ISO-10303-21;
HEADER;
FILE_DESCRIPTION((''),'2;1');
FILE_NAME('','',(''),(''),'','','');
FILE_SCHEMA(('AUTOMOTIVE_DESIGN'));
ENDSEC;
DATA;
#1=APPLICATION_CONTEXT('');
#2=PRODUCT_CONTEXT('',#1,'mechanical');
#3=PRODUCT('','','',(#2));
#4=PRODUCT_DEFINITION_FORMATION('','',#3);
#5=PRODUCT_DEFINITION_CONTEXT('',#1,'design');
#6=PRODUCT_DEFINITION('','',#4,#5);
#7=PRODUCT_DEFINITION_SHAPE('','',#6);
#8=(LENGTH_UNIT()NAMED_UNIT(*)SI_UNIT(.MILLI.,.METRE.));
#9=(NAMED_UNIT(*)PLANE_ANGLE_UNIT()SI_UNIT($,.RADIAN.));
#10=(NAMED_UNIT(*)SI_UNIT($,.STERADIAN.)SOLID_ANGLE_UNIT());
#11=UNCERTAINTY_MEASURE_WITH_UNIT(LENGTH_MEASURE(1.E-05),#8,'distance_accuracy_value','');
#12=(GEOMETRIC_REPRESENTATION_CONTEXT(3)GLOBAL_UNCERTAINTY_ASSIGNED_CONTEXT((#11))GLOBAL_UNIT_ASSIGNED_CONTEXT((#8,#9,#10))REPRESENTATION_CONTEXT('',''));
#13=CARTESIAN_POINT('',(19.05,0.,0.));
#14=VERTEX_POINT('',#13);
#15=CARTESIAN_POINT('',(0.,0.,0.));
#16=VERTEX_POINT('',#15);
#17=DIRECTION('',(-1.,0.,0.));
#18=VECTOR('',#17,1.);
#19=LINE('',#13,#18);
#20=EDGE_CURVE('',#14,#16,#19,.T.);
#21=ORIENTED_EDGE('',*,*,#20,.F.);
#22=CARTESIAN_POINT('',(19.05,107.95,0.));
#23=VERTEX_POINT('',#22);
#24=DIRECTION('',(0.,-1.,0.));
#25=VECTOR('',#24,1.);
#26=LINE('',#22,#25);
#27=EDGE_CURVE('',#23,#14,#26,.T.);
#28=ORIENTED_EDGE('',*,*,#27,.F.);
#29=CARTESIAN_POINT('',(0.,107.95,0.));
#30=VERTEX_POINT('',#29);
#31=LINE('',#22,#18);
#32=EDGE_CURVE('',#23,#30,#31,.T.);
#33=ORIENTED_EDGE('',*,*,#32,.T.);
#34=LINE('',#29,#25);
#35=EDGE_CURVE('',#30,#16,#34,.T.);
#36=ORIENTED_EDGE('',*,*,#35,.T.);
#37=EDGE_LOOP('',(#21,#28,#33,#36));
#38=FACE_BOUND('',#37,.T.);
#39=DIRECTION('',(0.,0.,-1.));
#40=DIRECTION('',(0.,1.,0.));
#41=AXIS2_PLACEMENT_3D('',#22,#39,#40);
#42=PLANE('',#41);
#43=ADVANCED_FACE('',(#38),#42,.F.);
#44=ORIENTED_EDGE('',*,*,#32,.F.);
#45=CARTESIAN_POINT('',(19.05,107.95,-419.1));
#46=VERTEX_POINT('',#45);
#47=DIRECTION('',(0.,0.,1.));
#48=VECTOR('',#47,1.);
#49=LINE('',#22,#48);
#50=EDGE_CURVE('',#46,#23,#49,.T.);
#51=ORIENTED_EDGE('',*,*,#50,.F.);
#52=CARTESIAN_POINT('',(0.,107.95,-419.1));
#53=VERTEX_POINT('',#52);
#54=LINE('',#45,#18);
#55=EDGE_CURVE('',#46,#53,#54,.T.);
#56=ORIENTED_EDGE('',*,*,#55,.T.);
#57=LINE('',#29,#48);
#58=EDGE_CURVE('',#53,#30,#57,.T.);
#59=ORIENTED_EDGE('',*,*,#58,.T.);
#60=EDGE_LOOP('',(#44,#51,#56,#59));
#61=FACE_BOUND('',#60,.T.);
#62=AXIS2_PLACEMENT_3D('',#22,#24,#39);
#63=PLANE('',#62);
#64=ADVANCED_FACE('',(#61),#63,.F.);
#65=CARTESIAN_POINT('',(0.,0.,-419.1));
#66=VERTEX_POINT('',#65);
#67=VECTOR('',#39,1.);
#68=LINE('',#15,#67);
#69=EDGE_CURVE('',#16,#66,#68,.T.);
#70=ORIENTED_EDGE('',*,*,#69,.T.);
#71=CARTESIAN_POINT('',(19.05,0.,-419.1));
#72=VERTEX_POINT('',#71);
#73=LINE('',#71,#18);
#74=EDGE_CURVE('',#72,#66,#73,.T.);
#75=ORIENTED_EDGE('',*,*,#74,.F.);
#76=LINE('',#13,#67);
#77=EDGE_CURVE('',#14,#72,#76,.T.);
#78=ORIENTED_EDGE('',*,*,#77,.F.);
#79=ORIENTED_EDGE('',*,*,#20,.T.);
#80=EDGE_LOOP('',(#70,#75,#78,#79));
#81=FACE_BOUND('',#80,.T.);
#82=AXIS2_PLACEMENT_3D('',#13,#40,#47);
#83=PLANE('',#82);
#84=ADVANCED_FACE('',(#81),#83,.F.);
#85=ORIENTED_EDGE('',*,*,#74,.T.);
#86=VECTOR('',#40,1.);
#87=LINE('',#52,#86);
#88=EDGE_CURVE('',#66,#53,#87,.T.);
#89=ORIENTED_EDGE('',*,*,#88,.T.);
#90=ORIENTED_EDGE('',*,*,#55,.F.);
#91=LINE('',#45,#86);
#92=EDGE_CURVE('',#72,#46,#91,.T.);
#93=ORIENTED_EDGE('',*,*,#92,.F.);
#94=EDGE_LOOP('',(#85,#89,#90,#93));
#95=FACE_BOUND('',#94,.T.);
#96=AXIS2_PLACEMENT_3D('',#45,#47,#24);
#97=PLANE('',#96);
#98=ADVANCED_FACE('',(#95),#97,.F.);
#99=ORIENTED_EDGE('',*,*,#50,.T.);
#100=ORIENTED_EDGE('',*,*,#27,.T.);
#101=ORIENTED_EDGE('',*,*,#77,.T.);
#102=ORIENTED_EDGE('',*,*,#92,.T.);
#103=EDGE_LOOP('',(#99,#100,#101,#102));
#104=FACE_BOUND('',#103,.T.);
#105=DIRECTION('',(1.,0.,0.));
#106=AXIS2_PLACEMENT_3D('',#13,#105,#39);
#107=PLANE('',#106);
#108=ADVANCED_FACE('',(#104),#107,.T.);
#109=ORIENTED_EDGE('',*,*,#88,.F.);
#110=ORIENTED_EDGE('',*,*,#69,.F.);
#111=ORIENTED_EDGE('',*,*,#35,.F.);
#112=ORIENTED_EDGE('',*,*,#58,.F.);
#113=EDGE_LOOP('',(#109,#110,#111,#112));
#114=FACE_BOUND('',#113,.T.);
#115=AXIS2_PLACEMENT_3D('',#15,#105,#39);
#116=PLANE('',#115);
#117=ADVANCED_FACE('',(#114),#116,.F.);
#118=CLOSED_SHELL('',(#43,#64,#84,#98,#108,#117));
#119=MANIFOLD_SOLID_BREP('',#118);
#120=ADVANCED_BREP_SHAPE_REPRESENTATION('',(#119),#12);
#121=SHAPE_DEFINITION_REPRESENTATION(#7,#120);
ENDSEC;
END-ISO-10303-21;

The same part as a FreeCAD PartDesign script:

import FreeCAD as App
import Part
import Sketcher
Q = App.Units.Quantity

doc = App.newDocument("Part")
body = doc.addObject("PartDesign::Body", "Body")

# Sketch on YZ plane
sketch1 = body.newObject("Sketcher::SketchObject", "Sketch")
sketch1.AttachmentSupport = (doc.getObject("YZ_Plane"), [""])
sketch1.MapMode = "FlatFace"
sketch1.addGeometry([
    Part.LineSegment(App.Vector(108, 0, 0), App.Vector(0, 0, 0)),
    Part.LineSegment(App.Vector(0, 0, 0), App.Vector(0, -419, 0)),
    Part.LineSegment(App.Vector(0, -419, 0), App.Vector(108, -419, 0)),
    Part.LineSegment(App.Vector(108, -419, 0), App.Vector(108, 0, 0)),
], False)
sketch1.addConstraint([
    Sketcher.Constraint("Coincident", 0, 2, 1, 1),
    Sketcher.Constraint("Coincident", 1, 2, 2, 1),
    Sketcher.Constraint("Coincident", 2, 2, 3, 1),
    Sketcher.Constraint("Coincident", 3, 2, 0, 1),
    Sketcher.Constraint("Horizontal", 0),
    Sketcher.Constraint("Vertical", 1),
    Sketcher.Constraint("Horizontal", 2),
    Sketcher.Constraint("Vertical", 3),
    Sketcher.Constraint("Coincident", 0, 2, -1, 1),
    Sketcher.Constraint("DistanceY", 1, 2, 1, 1, Q("16.5 in")),
    Sketcher.Constraint("DistanceX", 0, 2, 0, 1, Q("4.25 in")),
])
pad1 = body.newObject("PartDesign::Pad", "Pad")
pad1.Profile = sketch1
pad1.Length = Q("0.75 in")

doc.recompute()
